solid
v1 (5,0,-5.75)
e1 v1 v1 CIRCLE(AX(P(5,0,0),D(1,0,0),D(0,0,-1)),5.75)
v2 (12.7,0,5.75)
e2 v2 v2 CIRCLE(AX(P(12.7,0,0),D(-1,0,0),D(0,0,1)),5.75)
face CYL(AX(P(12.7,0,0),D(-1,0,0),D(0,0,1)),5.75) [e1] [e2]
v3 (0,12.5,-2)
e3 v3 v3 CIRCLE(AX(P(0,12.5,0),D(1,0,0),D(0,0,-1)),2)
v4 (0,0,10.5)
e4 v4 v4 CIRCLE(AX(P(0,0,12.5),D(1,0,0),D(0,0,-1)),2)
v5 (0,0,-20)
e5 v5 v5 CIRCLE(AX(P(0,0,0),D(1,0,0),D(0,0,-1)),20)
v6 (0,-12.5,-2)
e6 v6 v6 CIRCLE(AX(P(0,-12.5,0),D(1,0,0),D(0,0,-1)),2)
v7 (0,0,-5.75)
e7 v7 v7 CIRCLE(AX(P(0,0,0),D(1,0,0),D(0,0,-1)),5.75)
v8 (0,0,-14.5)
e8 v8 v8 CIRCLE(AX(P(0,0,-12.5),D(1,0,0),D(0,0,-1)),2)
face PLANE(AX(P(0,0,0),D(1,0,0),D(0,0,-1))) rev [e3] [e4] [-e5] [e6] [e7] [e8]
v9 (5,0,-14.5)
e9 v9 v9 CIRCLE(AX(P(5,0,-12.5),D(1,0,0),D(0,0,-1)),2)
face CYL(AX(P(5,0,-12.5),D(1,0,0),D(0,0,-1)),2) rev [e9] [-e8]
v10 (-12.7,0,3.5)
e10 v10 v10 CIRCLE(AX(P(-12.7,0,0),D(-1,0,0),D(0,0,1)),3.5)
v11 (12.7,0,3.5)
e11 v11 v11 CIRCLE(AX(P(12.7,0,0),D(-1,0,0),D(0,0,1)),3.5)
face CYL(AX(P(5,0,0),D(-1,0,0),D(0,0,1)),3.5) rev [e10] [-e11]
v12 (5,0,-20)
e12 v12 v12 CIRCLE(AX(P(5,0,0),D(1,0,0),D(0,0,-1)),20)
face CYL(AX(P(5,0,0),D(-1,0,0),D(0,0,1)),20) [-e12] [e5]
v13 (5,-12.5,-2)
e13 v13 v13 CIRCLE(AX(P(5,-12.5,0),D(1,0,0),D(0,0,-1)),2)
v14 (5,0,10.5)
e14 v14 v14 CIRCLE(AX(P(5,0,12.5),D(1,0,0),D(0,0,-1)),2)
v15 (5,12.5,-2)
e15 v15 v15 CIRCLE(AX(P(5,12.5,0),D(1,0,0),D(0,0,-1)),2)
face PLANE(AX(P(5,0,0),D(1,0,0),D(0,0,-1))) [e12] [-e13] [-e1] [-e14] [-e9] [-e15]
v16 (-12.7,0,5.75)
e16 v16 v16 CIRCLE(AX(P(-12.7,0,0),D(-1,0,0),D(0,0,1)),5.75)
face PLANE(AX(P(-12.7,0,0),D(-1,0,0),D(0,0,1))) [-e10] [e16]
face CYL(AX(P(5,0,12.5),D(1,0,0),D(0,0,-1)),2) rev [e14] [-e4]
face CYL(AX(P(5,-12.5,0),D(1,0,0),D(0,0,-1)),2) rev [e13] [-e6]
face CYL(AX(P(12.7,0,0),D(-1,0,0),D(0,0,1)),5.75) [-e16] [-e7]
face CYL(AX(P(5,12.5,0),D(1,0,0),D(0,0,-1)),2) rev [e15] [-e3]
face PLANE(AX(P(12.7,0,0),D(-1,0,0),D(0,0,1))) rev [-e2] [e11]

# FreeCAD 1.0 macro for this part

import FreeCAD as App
import Part
import Sketcher

V = App.Vector

doc = App.newDocument("Part")
params = doc.addObject("Spreadsheet::Sheet", "Params")
for row, (alias, value) in enumerate([
    ("sketch1_diameter", "40 mm"),
    ("sketch1_diameter2", "7 mm"),
    ("pad1_length", "5 mm"),
    ("sketch2_diameter", "7 mm"),
    ("sketch2_diameter2", "11.5 mm"),
    ("pad2_length", "12.7 mm"),
    ("pad2_length2", "12.7 mm"),
    ("sketch3_diameter", "4 mm"),
    ("hole_diameter", "4 mm"),
    ("hole_depth", "15 mm"),
], start=1):
    params.set(f"A{row}", alias)
    params.set(f"B{row}", "=" + value)
    params.setAlias(f"B{row}", alias)

body = doc.addObject("PartDesign::Body", "Body")

# Sketch on YZ plane
sketch1 = body.newObject("Sketcher::SketchObject", "Sketch")
sketch1.AttachmentSupport = (doc.getObject("YZ_Plane"), [""])
sketch1.MapMode = "FlatFace"
sketch1.addGeometry(Part.Circle(V(0, 0, 0), V(0, 0, 1), 20), False)
sketch1.addGeometry(Part.Circle(V(0, 0, 0), V(0, 0, 1), 3.5), False)
sketch1.addConstraint(Sketcher.Constraint("Coincident", 0, 3, -1, 1))
sketch1.addConstraint(Sketcher.Constraint("Coincident", 1, 3, -1, 1))
sketch1.addConstraint(Sketcher.Constraint("Diameter", 0, 40.0))
sketch1.addConstraint(Sketcher.Constraint("Diameter", 1, 7.0))
sketch1.setExpression("Constraints[2]", "Params.sketch1_diameter")
sketch1.setExpression("Constraints[3]", "Params.sketch1_diameter2")
pad1 = body.newObject("PartDesign::Pad", "Pad")
pad1.Profile = sketch1
pad1.setExpression("Length", "Params.pad1_length")

# Sketch on YZ plane
sketch2 = body.newObject("Sketcher::SketchObject", "Sketch001")
sketch2.AttachmentSupport = (doc.getObject("YZ_Plane"), [""])
sketch2.MapMode = "FlatFace"
sketch2.addGeometry(Part.Circle(V(0, 0, 0), V(0, 0, 1), 5.8), False)
sketch2.addGeometry(Part.Circle(V(0, 0, 0), V(0, 0, 1), 3.5), False)
sketch2.addConstraint(Sketcher.Constraint("Coincident", 0, 3, -1, 1))
sketch2.addConstraint(Sketcher.Constraint("Coincident", 1, 3, -1, 1))
sketch2.addConstraint(Sketcher.Constraint("Diameter", 1, 7.0))
sketch2.addConstraint(Sketcher.Constraint("Diameter", 0, 11.5))
sketch2.setExpression("Constraints[2]", "Params.sketch2_diameter")
sketch2.setExpression("Constraints[3]", "Params.sketch2_diameter2")
pad2 = body.newObject("PartDesign::Pad", "Pad001")
pad2.Profile = sketch2
pad2.Type = "TwoLengths"
pad2.setExpression("Length", "Params.pad2_length")
pad2.setExpression("Length2", "Params.pad2_length2")
pad2.Reversed = True

# Sketch on YZ plane
sketch3 = body.newObject("Sketcher::SketchObject", "Sketch002")
sketch3.AttachmentSupport = (doc.getObject("YZ_Plane"), [""])
sketch3.MapMode = "FlatFace"
sketch3.AttachmentOffset = App.Placement(V(0, 0, 5), App.Rotation())
sketch3.addGeometry(Part.Circle(V(0, -12.5, 0), V(0, 0, 1), 2), False)
sketch3.addGeometry(Part.Circle(V(-12.5, 0, 0), V(0, 0, 1), 2), False)
sketch3.addGeometry(Part.Circle(V(0, 12.5, 0), V(0, 0, 1), 2), False)
sketch3.addGeometry(Part.Circle(V(12.5, 0, 0), V(0, 0, 1), 2), False)
sketch3.addConstraint(Sketcher.Constraint("Equal", 0, 1))
sketch3.addConstraint(Sketcher.Constraint("Equal", 1, 2))
sketch3.addConstraint(Sketcher.Constraint("Equal", 2, 3))
sketch3.addConstraint(Sketcher.Constraint("Symmetric", 0, 3, 2, 3, -1, 1))
sketch3.addConstraint(Sketcher.Constraint("Symmetric", 1, 3, 3, 3, -1, 1))
sketch3.addConstraint(Sketcher.Constraint("PointOnObject", 0, 3, -2))
sketch3.addConstraint(Sketcher.Constraint("PointOnObject", 1, 3, -1))
sketch3.addConstraint(Sketcher.Constraint("Diameter", 0, 4.0))
sketch3.addConstraint(Sketcher.Constraint("DistanceY", 0, 3, 2, 3, 25.0))
sketch3.addConstraint(Sketcher.Constraint("DistanceX", 1, 3, 3, 3, 25.0))
sketch3.setExpression("Constraints[7]", "Params.sketch3_diameter")
doc.recompute()
hole = body.newObject("PartDesign::Hole", "Hole")
hole.Profile = sketch3
hole.ThreadType = "None"
hole.setExpression("Diameter", "Params.hole_diameter")
hole.DepthType = "Dimension"
hole.setExpression("Depth", "Params.hole_depth")
hole.DrillPoint = "Angled"
hole.DrillPointAngle = 118

doc.recompute()
